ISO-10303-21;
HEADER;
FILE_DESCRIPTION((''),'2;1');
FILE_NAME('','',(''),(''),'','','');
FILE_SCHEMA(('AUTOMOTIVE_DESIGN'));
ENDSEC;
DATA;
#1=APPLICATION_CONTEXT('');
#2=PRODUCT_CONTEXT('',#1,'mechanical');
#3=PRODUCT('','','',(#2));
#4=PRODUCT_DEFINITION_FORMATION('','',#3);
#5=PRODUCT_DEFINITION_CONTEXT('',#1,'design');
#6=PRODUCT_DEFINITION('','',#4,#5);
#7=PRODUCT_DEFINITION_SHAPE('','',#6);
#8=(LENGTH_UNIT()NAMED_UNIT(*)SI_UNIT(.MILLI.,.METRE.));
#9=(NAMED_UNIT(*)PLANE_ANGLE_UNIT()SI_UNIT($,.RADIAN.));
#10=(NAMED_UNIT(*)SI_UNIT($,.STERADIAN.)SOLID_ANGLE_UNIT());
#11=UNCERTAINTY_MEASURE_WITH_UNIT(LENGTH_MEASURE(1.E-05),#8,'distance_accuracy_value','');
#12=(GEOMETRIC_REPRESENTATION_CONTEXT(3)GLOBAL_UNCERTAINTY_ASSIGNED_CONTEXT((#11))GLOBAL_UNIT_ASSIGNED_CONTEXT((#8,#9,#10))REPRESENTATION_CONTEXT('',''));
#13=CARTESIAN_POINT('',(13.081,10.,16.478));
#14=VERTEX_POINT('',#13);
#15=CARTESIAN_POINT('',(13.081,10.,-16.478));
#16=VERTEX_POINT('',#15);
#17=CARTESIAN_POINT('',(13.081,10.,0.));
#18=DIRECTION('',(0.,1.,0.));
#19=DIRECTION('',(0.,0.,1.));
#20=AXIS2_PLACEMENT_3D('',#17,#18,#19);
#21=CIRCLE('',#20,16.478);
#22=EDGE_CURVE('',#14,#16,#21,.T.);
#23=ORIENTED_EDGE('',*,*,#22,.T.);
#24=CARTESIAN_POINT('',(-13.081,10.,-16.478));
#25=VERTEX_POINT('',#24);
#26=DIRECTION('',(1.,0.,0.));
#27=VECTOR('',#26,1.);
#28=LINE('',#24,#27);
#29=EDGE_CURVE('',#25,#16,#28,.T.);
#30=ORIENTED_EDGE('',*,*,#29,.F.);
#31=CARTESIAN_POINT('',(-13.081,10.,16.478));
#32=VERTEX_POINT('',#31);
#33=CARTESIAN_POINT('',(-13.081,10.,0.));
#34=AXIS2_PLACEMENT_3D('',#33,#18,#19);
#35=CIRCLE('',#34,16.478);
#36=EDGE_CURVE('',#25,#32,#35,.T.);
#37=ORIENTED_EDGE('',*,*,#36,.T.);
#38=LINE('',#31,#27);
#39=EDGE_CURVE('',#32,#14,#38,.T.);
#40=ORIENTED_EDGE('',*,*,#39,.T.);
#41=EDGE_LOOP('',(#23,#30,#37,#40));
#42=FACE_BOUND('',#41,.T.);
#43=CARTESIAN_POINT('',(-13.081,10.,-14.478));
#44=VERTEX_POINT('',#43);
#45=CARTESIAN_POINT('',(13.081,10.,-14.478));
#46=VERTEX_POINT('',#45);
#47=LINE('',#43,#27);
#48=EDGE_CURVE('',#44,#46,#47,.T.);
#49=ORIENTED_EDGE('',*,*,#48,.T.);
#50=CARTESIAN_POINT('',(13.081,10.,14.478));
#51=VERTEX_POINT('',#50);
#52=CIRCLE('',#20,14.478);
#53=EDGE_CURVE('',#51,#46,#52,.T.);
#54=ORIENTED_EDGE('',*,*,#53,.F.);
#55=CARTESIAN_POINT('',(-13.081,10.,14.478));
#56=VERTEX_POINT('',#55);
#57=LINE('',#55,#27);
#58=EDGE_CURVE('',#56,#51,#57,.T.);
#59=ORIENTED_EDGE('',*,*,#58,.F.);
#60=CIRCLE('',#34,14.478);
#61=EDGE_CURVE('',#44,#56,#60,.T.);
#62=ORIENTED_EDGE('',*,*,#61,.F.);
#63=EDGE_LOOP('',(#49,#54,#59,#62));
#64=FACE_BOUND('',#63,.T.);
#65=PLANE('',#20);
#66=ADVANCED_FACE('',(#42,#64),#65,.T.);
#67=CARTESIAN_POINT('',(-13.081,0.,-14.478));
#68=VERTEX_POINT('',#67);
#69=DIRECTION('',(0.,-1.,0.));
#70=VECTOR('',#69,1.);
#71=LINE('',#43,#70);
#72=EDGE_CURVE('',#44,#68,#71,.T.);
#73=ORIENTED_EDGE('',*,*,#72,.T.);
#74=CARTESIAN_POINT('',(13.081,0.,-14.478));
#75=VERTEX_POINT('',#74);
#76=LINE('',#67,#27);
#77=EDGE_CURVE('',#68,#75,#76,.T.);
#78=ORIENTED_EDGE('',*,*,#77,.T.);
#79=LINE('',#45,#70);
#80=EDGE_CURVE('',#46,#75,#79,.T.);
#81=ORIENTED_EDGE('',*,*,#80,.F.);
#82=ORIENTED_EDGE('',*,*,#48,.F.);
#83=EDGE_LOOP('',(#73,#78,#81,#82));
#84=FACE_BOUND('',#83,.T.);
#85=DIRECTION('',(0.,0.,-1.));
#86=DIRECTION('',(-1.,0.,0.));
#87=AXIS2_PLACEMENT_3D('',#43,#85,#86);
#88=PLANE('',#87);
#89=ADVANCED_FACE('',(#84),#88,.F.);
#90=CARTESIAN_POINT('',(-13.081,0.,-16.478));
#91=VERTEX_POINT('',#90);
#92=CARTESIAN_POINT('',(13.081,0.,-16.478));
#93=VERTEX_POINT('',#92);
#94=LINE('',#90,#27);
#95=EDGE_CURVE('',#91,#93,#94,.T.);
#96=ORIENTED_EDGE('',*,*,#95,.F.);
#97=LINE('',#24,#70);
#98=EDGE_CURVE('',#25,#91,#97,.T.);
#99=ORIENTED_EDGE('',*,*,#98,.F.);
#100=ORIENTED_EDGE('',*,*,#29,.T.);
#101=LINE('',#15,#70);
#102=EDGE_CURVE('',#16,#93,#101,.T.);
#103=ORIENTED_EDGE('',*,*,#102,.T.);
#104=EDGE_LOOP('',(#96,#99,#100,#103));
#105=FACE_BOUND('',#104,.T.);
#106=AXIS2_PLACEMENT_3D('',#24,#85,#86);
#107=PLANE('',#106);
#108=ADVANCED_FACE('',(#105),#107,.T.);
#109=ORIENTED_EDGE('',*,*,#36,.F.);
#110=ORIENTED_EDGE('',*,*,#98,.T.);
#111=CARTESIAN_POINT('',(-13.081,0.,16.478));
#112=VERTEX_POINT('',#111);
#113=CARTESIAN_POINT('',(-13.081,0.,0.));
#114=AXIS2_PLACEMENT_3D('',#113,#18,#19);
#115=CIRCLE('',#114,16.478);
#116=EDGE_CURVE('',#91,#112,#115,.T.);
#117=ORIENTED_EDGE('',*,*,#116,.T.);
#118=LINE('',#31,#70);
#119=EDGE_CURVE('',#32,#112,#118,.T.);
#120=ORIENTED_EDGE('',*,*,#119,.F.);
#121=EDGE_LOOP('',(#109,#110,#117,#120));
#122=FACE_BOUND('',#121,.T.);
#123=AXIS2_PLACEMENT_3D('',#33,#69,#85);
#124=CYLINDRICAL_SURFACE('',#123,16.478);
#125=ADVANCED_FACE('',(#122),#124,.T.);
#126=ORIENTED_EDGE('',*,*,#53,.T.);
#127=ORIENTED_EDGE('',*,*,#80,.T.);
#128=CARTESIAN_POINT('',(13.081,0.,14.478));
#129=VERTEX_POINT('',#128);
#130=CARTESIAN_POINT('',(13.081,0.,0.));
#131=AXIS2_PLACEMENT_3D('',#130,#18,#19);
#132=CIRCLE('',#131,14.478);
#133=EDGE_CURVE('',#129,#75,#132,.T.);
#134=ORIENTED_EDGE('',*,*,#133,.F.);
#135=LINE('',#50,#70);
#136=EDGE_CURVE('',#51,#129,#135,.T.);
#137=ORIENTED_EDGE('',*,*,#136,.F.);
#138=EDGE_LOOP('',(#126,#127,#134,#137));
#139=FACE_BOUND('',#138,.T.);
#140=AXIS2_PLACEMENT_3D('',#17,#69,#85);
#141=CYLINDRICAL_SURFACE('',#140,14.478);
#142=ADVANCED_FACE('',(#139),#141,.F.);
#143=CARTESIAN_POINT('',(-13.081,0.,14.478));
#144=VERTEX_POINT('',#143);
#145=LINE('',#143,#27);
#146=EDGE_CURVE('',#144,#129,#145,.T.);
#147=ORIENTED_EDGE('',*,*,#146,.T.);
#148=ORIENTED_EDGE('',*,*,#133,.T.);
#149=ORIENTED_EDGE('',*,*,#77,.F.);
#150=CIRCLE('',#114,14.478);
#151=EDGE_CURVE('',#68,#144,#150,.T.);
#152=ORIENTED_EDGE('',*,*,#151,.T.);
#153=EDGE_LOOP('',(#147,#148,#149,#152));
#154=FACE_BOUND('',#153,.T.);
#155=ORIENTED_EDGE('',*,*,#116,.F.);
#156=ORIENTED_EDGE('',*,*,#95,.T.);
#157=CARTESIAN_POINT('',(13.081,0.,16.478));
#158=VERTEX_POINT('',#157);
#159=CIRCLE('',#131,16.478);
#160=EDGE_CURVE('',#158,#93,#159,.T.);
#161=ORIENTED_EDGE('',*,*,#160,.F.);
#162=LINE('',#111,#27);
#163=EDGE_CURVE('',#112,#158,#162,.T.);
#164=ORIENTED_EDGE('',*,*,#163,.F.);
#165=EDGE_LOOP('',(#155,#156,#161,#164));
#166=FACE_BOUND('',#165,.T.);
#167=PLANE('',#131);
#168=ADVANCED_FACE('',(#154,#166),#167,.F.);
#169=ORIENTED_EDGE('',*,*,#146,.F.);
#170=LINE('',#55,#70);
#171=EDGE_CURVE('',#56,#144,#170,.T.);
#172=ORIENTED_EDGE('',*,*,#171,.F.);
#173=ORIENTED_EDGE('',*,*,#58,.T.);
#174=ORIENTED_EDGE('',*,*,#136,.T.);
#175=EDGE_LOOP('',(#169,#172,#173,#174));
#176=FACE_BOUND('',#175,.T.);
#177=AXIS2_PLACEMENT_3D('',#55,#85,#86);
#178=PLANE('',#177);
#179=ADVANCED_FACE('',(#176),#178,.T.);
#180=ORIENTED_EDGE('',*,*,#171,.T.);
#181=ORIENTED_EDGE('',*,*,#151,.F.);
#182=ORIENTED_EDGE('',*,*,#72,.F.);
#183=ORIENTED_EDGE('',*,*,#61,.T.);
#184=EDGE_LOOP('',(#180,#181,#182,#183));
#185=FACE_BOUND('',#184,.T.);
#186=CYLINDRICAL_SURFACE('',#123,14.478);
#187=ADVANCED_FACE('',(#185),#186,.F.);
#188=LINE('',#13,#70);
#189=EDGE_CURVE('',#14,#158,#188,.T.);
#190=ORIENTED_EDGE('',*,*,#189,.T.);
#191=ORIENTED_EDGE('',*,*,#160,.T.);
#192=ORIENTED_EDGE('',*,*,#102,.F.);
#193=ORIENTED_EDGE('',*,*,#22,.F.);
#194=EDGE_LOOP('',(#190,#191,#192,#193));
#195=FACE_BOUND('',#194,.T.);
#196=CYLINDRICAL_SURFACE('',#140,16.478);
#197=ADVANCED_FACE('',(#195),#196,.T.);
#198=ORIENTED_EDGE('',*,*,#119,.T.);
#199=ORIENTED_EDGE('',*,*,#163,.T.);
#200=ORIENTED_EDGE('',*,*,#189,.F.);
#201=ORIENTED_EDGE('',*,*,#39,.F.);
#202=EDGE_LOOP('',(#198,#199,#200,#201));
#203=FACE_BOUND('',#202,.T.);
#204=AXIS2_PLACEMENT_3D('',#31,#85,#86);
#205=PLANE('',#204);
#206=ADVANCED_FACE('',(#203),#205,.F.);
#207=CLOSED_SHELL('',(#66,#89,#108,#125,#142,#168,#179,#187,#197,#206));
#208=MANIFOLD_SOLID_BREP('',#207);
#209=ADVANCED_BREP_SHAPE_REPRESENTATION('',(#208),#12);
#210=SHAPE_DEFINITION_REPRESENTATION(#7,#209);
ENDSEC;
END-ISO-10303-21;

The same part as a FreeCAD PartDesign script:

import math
import FreeCAD as App
import Part
import Sketcher

V = App.Vector
Q = App.Units.Quantity

doc = App.newDocument("Part")
body = doc.addObject("PartDesign::Body", "Body")

sketch1 = body.newObject("Sketcher::SketchObject", "Sketch")
sketch1.AttachmentSupport = (doc.getObject("XZ_Plane"), [""])
sketch1.MapMode = "FlatFace"
sketch1.addGeometry(Part.LineSegment(V(13.081, -16.478, 0), V(-13.081, -16.478, 0)), False)
sketch1.addGeometry(Part.ArcOfCircle(Part.Circle(V(-13.081, 0, 0), V(0, 0, 1), 16.478), math.radians(90), math.radians(270)), False)
sketch1.addGeometry(Part.LineSegment(V(-13.081, 16.478, 0), V(13.081, 16.478, 0)), False)
sketch1.addGeometry(Part.ArcOfCircle(Part.Circle(V(13.081, 0, 0), V(0, 0, 1), 16.478), math.radians(-90), math.radians(90)), False)
sketch1.addGeometry(Part.LineSegment(V(-13.081, -14.478, 0), V(13.081, -14.478, 0)), False)
sketch1.addGeometry(Part.ArcOfCircle(Part.Circle(V(13.081, 0, 0), V(0, 0, 1), 14.478), math.radians(-90), math.radians(90)), False)
sketch1.addGeometry(Part.LineSegment(V(13.081, 14.478, 0), V(-13.081, 14.478, 0)), False)
sketch1.addGeometry(Part.ArcOfCircle(Part.Circle(V(-13.081, 0, 0), V(0, 0, 1), 14.478), math.radians(90), math.radians(270)), False)
sketch1.addConstraint(Sketcher.Constraint("Tangent", 0, 2, 1, 2))
sketch1.addConstraint(Sketcher.Constraint("Tangent", 1, 1, 2, 1))
sketch1.addConstraint(Sketcher.Constraint("Tangent", 2, 2, 3, 2))
sketch1.addConstraint(Sketcher.Constraint("Tangent", 3, 1, 0, 1))
sketch1.addConstraint(Sketcher.Constraint("Tangent", 4, 2, 5, 1))
sketch1.addConstraint(Sketcher.Constraint("Tangent", 5, 2, 6, 1))
sketch1.addConstraint(Sketcher.Constraint("Tangent", 6, 2, 7, 1))
sketch1.addConstraint(Sketcher.Constraint("Tangent", 7, 2, 4, 1))
sketch1.addConstraint(Sketcher.Constraint("Horizontal", 0))
sketch1.addConstraint(Sketcher.Constraint("Horizontal", 2))
sketch1.addConstraint(Sketcher.Constraint("Horizontal", 4))
sketch1.addConstraint(Sketcher.Constraint("Horizontal", 6))
sketch1.addConstraint(Sketcher.Constraint("Coincident", 5, 3, 3, 3))
sketch1.addConstraint(Sketcher.Constraint("Symmetric", 1, 3, 3, 3, -1, 1))
sketch1.addConstraint(Sketcher.Constraint("Vertical", 7, 3, 0, 2))
sketch1.addConstraint(Sketcher.Constraint("Radius", 5, Q("0.57 in")))
sketch1.addConstraint(Sketcher.Constraint("DistanceX", 0, 2, 0, 1, Q("1.03 in")))
sketch1.addConstraint(Sketcher.Constraint("Radius", 1, 16.478))
pad1 = body.newObject("PartDesign::Pad", "Pad")
pad1.Profile = sketch1
pad1.Length = 10
pad1.Reversed = True

doc.recompute()
